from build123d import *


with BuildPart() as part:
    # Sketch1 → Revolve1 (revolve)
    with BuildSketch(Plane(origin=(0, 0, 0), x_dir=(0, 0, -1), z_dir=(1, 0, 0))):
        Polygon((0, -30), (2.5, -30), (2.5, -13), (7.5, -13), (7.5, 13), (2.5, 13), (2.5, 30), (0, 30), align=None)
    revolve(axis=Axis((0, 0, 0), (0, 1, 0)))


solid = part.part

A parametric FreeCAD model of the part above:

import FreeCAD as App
import Part
import Sketcher

V = App.Vector
Q = App.Units.Quantity


def add_polygon(sketch, points):
    """Adds a closed chain of lines whose ends are joined by coincident constraints."""
    first, n = sketch.GeometryCount, len(points)
    for a, b in zip(points, points[1:] + points[:1]):
        sketch.addGeometry(Part.LineSegment(App.Vector(*a, 0), App.Vector(*b, 0)), False)
    for i in range(n):
        sketch.addConstraint(Sketcher.Constraint("Coincident", first + i, 2, first + (i + 1) % n, 1))

doc = App.newDocument("Part")
body = doc.addObject("PartDesign::Body", "Body")

# Sketch on YZ plane
sketch1 = body.newObject("Sketcher::SketchObject", "Sketch")
sketch1.AttachmentSupport = (doc.getObject("YZ_Plane"), [""])
sketch1.MapMode = "FlatFace"
add_polygon(sketch1, [(-30, 0), (-30, -2.5), (-13, -2.5), (-13, -7.5), (13, -7.5), (13, -2.5), (30, -2.5), (30, 0)])  # lines 0-7
sketch1.addConstraint([
    Sketcher.Constraint("Vertical", 0),
    Sketcher.Constraint("Horizontal", 1),
    Sketcher.Constraint("Vertical", 2),
    Sketcher.Constraint("Horizontal", 3),
    Sketcher.Constraint("Vertical", 4),
    Sketcher.Constraint("Horizontal", 5),
    Sketcher.Constraint("Vertical", 6),
    Sketcher.Constraint("Horizontal", 7),
    Sketcher.Constraint("Symmetric", 6, 2, 7, 2, -1, 1),
    Sketcher.Constraint("Symmetric", 1, 2, 4, 2, -2),
    Sketcher.Constraint("DistanceX", 1, 1, 1, 2, Q("17 mm")),
    Sketcher.Constraint("DistanceX", 3, 1, 3, 2, Q("26 mm")),
    Sketcher.Constraint("DistanceY", 2, 2, 2, 1, Q("5 mm")),
    Sketcher.Constraint("DistanceY", 0, 2, 0, 1, Q("2.5 mm")),
])
revolution = body.newObject("PartDesign::Revolution", "Revolution")
revolution.Profile = sketch1
revolution.ReferenceAxis = (sketch1, ["H_Axis"])
revolution.Angle = 360

doc.recompute()
